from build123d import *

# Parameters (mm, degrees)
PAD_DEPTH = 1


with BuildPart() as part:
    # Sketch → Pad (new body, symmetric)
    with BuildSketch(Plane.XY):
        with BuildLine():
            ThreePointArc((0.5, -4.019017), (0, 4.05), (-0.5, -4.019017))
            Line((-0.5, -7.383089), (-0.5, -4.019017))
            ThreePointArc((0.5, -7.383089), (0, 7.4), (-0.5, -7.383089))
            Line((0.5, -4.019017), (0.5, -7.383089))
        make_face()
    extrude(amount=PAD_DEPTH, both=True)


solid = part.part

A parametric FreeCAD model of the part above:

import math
import FreeCAD as App
import Part
import Sketcher

V = App.Vector

doc = App.newDocument("Part")
body = doc.addObject("PartDesign::Body", "Body")

# Sketch on XY plane
sketch1 = body.newObject("Sketcher::SketchObject", "Sketch")
sketch1.AttachmentSupport = (doc.getObject("XY_Plane"), [""])
sketch1.MapMode = "FlatFace"
sketch1.addGeometry([
    Part.ArcOfCircle(Part.Circle(V(0, 0, 0), V(0, 0, 1), 4.05), math.radians(-82.908354), math.radians(262.908354)),
    Part.LineSegment(V(0.5, -4.019017, 0), V(0.5, -7.383089, 0)),
    Part.ArcOfCircle(Part.Circle(V(0, 0, 0), V(0, 0, 1), 7.4), math.radians(-86.125712), math.radians(266.125712)),
    Part.LineSegment(V(-0.5, -7.383089, 0), V(-0.5, -4.019017, 0)),
], False)
sketch1.addConstraint([
    Sketcher.Constraint("Coincident", 0, 1, 1, 1),
    Sketcher.Constraint("Coincident", 1, 2, 2, 1),
    Sketcher.Constraint("Coincident", 2, 2, 3, 1),
    Sketcher.Constraint("Coincident", 3, 2, 0, 2),
    Sketcher.Constraint("Vertical", 1),
    Sketcher.Constraint("Vertical", 3),
    Sketcher.Constraint("Coincident", 0, 3, -1, 1),
    Sketcher.Constraint("Coincident", 2, 3, -1, 1),
    Sketcher.Constraint("Horizontal", 1, 2, 2, 2),
    Sketcher.Constraint("Radius", 2, 7.4),
    Sketcher.Constraint("Radius", 0, 4.05),
    Sketcher.Constraint("DistanceX", 2, 2, 1, 2, 1.0),
])
pad1 = body.newObject("PartDesign::Pad", "Pad")
pad1.Profile = sketch1
pad1.Length = 2
pad1.Midplane = True

doc.recompute()
